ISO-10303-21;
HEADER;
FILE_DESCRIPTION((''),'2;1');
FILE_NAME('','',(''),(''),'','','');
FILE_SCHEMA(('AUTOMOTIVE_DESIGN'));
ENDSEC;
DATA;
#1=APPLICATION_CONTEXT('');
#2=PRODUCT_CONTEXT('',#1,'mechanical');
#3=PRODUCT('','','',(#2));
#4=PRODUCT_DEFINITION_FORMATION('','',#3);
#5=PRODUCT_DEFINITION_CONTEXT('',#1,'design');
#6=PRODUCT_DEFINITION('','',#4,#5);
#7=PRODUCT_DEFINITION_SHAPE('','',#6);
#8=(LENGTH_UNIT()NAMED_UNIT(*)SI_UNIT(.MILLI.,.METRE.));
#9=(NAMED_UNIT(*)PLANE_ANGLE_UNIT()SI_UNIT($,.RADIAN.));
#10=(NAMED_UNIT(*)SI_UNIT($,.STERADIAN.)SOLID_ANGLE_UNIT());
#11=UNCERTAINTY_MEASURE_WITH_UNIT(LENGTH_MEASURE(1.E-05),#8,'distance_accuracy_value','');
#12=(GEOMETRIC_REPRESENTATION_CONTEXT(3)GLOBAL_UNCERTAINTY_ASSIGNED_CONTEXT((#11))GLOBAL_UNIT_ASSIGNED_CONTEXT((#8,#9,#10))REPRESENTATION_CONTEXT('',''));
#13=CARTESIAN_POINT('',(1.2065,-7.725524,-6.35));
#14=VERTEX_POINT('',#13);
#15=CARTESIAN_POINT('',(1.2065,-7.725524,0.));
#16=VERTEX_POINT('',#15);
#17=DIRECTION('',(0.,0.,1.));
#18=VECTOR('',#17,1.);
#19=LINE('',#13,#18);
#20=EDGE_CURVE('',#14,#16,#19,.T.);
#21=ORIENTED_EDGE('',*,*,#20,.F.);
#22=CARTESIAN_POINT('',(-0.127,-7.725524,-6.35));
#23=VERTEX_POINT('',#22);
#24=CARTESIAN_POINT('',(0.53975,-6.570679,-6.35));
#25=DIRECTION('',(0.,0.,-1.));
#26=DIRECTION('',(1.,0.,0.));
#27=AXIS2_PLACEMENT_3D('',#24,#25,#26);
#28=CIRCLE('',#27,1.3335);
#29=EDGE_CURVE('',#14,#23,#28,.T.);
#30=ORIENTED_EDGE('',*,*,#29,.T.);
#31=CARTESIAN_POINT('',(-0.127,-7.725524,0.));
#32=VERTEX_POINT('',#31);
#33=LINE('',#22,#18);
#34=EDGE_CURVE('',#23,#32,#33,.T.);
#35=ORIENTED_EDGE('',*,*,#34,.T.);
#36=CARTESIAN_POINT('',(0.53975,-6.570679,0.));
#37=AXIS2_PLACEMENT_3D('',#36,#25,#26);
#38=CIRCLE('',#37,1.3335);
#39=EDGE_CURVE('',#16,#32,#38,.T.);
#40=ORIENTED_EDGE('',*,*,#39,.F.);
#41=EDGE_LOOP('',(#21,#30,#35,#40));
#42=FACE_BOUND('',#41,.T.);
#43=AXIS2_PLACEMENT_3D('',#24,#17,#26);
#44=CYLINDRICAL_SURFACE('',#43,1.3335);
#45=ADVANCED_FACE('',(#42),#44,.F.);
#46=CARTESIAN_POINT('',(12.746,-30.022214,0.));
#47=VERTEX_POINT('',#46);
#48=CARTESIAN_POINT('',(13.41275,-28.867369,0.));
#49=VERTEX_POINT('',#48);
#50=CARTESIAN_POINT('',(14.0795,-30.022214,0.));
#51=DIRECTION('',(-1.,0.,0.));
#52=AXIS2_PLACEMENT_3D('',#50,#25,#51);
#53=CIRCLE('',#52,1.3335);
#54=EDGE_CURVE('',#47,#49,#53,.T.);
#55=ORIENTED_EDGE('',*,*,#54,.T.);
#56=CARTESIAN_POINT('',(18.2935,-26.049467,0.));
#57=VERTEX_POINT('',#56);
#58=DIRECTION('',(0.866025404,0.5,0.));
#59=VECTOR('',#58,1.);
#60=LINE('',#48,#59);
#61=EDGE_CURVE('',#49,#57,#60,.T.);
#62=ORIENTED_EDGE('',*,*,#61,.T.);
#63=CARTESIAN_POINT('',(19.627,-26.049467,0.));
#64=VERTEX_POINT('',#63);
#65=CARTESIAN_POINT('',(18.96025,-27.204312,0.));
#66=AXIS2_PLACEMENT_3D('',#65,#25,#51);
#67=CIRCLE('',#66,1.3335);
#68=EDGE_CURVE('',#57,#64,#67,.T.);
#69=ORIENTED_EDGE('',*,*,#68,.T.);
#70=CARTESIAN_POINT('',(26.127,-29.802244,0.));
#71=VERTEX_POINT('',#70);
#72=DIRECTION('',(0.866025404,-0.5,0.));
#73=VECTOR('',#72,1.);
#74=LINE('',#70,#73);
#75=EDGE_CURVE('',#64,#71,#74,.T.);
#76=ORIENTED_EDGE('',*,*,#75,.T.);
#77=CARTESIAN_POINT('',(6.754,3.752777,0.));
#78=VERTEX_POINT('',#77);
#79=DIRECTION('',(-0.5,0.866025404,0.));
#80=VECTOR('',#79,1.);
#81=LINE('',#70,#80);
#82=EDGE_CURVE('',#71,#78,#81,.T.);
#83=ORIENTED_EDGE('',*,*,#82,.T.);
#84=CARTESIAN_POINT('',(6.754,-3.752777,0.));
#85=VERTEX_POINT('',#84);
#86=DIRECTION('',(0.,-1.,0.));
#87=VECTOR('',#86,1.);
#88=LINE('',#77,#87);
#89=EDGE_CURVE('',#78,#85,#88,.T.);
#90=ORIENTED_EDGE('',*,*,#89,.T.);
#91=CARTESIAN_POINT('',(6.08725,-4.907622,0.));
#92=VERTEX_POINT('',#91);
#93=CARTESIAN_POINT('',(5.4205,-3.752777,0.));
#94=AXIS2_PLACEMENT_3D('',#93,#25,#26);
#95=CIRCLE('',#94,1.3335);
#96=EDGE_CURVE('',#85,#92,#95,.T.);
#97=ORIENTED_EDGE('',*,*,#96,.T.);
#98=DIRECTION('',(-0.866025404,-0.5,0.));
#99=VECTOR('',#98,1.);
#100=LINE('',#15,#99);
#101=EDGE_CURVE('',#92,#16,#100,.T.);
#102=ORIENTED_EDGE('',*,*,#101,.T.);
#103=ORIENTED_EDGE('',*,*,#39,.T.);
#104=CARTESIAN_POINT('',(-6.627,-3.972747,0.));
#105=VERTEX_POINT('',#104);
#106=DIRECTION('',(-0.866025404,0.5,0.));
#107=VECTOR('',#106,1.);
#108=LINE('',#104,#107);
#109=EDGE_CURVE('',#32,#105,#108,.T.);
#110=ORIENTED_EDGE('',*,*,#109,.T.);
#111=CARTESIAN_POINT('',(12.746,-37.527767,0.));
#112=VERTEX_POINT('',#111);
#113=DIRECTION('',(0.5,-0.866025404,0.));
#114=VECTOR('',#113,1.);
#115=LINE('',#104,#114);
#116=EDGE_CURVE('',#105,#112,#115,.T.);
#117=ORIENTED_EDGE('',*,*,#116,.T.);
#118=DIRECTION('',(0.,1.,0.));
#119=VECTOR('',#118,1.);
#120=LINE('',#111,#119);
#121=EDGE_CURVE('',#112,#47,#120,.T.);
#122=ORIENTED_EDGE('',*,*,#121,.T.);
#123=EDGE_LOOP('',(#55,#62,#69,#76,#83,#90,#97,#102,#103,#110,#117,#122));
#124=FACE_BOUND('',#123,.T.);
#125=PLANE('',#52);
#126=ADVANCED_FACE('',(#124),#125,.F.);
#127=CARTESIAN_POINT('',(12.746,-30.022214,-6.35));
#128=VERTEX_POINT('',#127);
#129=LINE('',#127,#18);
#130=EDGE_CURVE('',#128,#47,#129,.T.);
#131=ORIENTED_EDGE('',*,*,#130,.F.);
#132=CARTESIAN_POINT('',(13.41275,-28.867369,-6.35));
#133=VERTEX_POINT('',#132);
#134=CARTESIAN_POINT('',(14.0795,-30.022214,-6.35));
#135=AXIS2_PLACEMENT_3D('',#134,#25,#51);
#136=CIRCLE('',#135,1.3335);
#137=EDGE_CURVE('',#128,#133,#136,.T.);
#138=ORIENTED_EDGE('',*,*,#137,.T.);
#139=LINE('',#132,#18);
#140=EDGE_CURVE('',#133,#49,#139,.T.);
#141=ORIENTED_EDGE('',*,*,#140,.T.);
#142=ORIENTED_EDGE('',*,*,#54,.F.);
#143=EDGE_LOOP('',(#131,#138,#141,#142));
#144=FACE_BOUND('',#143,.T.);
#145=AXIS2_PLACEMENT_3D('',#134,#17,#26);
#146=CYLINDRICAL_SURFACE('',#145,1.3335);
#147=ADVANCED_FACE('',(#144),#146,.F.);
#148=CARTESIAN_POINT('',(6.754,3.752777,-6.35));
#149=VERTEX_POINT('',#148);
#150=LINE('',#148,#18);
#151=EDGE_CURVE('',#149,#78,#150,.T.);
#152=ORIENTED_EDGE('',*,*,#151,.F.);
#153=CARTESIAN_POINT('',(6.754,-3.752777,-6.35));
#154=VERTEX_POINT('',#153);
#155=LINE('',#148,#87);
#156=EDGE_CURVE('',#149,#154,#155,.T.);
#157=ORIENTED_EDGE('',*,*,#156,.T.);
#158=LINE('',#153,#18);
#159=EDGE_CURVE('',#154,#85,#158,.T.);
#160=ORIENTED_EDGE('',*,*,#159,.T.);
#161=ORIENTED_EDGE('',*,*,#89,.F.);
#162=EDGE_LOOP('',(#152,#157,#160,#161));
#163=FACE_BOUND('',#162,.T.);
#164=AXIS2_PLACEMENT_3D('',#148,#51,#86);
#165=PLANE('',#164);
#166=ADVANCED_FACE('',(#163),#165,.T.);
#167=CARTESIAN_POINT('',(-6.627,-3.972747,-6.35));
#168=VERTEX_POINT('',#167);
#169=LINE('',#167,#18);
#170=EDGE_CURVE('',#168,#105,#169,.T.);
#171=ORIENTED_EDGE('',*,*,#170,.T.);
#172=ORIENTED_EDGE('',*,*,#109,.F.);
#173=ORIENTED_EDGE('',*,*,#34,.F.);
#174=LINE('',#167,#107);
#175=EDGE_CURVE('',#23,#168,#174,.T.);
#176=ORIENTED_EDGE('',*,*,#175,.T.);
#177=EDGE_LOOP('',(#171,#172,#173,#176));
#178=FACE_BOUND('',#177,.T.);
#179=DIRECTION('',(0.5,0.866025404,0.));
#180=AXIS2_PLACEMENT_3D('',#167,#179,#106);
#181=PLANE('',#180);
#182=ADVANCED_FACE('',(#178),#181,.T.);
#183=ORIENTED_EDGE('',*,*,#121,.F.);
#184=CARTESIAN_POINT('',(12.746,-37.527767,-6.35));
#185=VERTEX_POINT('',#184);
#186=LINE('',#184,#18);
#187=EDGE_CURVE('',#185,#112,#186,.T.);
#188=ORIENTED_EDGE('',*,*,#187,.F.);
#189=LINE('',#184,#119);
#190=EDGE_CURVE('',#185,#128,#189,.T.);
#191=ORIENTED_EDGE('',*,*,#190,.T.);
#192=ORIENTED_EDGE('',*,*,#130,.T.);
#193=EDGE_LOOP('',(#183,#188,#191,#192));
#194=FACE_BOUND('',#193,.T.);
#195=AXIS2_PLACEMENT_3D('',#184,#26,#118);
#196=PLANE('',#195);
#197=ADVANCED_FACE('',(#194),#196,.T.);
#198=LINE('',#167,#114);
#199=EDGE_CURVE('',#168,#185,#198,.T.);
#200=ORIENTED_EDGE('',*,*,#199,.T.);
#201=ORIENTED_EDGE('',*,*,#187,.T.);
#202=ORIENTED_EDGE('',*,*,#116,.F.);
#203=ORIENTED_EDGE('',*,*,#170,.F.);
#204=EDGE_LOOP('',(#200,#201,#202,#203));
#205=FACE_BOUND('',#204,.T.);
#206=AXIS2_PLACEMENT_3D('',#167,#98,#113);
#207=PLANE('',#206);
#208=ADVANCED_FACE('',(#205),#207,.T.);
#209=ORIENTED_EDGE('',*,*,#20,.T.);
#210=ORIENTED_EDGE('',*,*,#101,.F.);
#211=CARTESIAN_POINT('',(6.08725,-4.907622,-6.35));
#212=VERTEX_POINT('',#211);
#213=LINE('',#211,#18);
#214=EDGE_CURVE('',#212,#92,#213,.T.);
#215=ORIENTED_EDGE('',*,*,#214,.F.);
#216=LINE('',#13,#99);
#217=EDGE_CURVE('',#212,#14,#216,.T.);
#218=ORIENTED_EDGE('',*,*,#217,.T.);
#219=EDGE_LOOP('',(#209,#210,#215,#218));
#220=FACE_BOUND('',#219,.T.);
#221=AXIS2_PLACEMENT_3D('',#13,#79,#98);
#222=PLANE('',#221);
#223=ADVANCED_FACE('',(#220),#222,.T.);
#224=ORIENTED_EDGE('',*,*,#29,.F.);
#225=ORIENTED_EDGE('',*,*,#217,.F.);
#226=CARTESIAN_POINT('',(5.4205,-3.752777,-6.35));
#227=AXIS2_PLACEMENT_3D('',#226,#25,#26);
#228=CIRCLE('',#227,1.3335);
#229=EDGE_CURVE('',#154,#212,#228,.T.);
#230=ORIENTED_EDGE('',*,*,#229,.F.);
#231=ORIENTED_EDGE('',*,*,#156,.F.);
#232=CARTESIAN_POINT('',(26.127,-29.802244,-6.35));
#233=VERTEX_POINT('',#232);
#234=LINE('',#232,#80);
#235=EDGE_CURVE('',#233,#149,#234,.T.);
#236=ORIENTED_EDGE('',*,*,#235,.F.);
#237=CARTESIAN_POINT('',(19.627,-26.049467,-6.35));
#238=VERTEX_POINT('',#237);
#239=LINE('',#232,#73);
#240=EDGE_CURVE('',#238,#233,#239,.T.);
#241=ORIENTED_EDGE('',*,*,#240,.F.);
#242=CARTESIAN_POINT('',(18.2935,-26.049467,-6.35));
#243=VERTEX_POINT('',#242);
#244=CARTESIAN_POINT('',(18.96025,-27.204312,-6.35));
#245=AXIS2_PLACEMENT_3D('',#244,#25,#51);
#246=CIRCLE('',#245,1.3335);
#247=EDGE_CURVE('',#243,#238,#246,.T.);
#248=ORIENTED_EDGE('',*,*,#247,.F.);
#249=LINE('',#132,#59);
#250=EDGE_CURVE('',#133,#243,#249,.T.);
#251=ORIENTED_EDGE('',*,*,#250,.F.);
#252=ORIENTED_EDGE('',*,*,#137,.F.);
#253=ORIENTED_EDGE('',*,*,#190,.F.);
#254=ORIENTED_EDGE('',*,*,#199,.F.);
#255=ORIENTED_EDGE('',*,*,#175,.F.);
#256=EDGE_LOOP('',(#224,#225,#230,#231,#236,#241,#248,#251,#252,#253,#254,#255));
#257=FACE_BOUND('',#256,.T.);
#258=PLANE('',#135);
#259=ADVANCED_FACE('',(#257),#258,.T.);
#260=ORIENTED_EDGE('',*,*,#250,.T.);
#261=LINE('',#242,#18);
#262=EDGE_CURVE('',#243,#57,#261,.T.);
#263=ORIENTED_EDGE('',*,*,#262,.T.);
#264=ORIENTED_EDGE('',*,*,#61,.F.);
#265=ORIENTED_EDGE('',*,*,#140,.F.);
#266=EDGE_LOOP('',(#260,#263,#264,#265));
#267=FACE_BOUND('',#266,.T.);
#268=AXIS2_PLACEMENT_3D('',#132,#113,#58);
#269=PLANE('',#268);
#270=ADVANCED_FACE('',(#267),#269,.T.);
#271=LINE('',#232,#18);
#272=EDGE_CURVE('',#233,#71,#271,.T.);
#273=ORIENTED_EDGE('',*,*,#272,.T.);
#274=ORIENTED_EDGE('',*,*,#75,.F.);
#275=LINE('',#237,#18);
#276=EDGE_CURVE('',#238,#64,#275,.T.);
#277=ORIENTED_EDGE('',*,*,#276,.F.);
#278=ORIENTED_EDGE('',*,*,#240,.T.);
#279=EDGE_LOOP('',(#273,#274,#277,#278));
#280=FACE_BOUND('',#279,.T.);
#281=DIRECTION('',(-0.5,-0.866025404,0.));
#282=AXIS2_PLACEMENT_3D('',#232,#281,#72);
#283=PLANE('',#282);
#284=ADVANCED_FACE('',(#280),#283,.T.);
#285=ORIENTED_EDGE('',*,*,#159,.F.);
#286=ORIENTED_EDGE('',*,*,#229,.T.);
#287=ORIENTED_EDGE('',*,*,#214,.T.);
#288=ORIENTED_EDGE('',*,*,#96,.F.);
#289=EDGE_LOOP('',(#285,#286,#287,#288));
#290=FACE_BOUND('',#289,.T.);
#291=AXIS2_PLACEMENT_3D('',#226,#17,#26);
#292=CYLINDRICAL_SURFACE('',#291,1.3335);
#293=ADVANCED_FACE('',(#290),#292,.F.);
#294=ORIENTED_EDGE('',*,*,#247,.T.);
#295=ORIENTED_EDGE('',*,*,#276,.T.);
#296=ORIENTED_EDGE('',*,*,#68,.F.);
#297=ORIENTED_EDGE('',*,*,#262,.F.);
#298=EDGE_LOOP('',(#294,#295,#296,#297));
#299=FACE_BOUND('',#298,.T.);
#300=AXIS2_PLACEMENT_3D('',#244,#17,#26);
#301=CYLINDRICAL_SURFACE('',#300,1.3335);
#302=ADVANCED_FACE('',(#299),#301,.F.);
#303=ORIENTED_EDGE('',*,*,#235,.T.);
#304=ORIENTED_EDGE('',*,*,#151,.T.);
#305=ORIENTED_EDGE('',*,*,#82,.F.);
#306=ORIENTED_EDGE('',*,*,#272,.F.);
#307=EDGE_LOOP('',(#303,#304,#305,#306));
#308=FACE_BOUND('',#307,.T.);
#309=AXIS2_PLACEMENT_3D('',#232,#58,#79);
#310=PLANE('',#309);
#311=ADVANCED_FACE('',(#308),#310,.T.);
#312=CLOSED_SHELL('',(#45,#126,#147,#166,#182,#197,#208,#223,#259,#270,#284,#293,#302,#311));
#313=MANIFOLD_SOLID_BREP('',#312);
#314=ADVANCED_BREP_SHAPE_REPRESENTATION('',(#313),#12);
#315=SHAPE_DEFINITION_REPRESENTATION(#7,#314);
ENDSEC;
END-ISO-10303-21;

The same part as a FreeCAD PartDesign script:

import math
import FreeCAD as App
import Part
import Sketcher
Q = App.Units.Quantity

doc = App.newDocument("Part")
params = doc.addObject("Spreadsheet::Sheet", "Params")
for row, (alias, value) in enumerate([
    ("pad1_length", "0.25 in"),
], start=1):
    params.set(f"A{row}", alias)
    params.set(f"B{row}", "=" + value)
    params.setAlias(f"B{row}", alias)

body = doc.addObject("PartDesign::Body", "Body")

# Sketch on XY plane
sketch1 = body.newObject("Sketcher::SketchObject", "Sketch")
sketch1.AttachmentSupport = (doc.getObject("XY_Plane"), [""])
sketch1.MapMode = "FlatFace"
sketch1.addGeometry(Part.LineSegment(App.Vector(19.6, -26, 0), App.Vector(26.1, -29.8, 0)), False)
sketch1.addGeometry(Part.LineSegment(App.Vector(26.1, -29.8, 0), App.Vector(6.8, 3.8, 0)), False)
sketch1.addGeometry(Part.LineSegment(App.Vector(6.8, 3.8, 0), App.Vector(6.8, -3.8, 0)), False)
sketch1.addGeometry(Part.ArcOfCircle(Part.Circle(App.Vector(5.4, -3.8, 0), App.Vector(0, 0, 1), 1.3), math.radians(-60), math.radians(0)), False)
sketch1.addGeometry(Part.LineSegment(App.Vector(6.1, -4.9, 0), App.Vector(1.2, -7.7, 0)), False)
sketch1.addGeometry(Part.ArcOfCircle(Part.Circle(App.Vector(0.5, -6.6, 0), App.Vector(0, 0, 1), 1.3), math.radians(-120), math.radians(-60)), False)
sketch1.addGeometry(Part.LineSegment(App.Vector(-0.1, -7.7, 0), App.Vector(-6.6, -4, 0)), False)
sketch1.addGeometry(Part.LineSegment(App.Vector(-6.6, -4, 0), App.Vector(12.7, -37.5, 0)), False)
sketch1.addGeometry(Part.LineSegment(App.Vector(12.7, -37.5, 0), App.Vector(12.7, -30, 0)), False)
sketch1.addGeometry(Part.ArcOfCircle(Part.Circle(App.Vector(14.1, -30, 0), App.Vector(0, 0, 1), 1.3), math.radians(120), math.radians(180)), False)
sketch1.addGeometry(Part.LineSegment(App.Vector(13.4, -28.9, 0), App.Vector(18.3, -26, 0)), False)
sketch1.addGeometry(Part.ArcOfCircle(Part.Circle(App.Vector(19, -27.2, 0), App.Vector(0, 0, 1), 1.3), math.radians(60), math.radians(120)), False)
sketch1.addConstraint(Sketcher.Constraint("Coincident", 0, 2, 1, 1))
sketch1.addConstraint(Sketcher.Constraint("Coincident", 1, 2, 2, 1))
sketch1.addConstraint(Sketcher.Constraint("Tangent", 2, 2, 3, 2))
sketch1.addConstraint(Sketcher.Constraint("Tangent", 3, 1, 4, 1))
sketch1.addConstraint(Sketcher.Constraint("Tangent", 4, 2, 5, 2))
sketch1.addConstraint(Sketcher.Constraint("Tangent", 5, 1, 6, 1))
sketch1.addConstraint(Sketcher.Constraint("Coincident", 6, 2, 7, 1))
sketch1.addConstraint(Sketcher.Constraint("Coincident", 7, 2, 8, 1))
sketch1.addConstraint(Sketcher.Constraint("Tangent", 8, 2, 9, 2))
sketch1.addConstraint(Sketcher.Constraint("Tangent", 9, 1, 10, 1))
sketch1.addConstraint(Sketcher.Constraint("Tangent", 10, 2, 11, 2))
sketch1.addConstraint(Sketcher.Constraint("Tangent", 11, 1, 0, 1))
sketch1.addConstraint(Sketcher.Constraint("Vertical", 2))
sketch1.addConstraint(Sketcher.Constraint("Vertical", 8))
sketch1.addConstraint(Sketcher.Constraint("Equal", 3, 5))
sketch1.addConstraint(Sketcher.Constraint("Equal", 5, 9))
sketch1.addConstraint(Sketcher.Constraint("Equal", 9, 11))
sketch1.addConstraint(Sketcher.Constraint("Perpendicular", 1, 4))
sketch1.addConstraint(Sketcher.Constraint("Parallel", 0, 6))
sketch1.addConstraint(Sketcher.Constraint("Perpendicular", 4, 7))
sketch1.addConstraint(Sketcher.Constraint("Perpendicular", 7, 10))
sketch1.addConstraint(Sketcher.Constraint("Horizontal", 4, 2, 5, 1))
sketch1.addConstraint(Sketcher.Constraint("Equal", 2, 8))
sketch1.addConstraint(Sketcher.Constraint("Equal", 0, 6))
sketch1.addConstraint(Sketcher.Constraint("Angle", 0, Q("-30 deg")))
sketch1.addConstraint(Sketcher.Constraint("Radius", 3, Q("0.0525 in")))
sketch1.addConstraint(Sketcher.Constraint("DistanceX", 5, 1, -1, 1, Q("0.005 in")))
sketch1.addConstraint(Sketcher.Constraint("Distance", 1, Q("38.746 mm")))
sketch1.addConstraint(Sketcher.Constraint("DistanceX", -1, 1, 3, 3, Q("5.4205 mm")))
sketch1.addConstraint(Sketcher.Constraint("DistanceX", -1, 1, 9, 3, Q("14.0795 mm")))
sketch1.addConstraint(Sketcher.Constraint("DistanceY", 3, 1, 1, 2, Q("8.660398 mm")))
sketch1.addConstraint(Sketcher.Constraint("DistanceY", 5, 3, -1, 1, Q("6.570679 mm")))
pad1 = body.newObject("PartDesign::Pad", "Pad")
pad1.Profile = sketch1
pad1.setExpression("Length", "Params.pad1_length")
pad1.Reversed = True

doc.recompute()
